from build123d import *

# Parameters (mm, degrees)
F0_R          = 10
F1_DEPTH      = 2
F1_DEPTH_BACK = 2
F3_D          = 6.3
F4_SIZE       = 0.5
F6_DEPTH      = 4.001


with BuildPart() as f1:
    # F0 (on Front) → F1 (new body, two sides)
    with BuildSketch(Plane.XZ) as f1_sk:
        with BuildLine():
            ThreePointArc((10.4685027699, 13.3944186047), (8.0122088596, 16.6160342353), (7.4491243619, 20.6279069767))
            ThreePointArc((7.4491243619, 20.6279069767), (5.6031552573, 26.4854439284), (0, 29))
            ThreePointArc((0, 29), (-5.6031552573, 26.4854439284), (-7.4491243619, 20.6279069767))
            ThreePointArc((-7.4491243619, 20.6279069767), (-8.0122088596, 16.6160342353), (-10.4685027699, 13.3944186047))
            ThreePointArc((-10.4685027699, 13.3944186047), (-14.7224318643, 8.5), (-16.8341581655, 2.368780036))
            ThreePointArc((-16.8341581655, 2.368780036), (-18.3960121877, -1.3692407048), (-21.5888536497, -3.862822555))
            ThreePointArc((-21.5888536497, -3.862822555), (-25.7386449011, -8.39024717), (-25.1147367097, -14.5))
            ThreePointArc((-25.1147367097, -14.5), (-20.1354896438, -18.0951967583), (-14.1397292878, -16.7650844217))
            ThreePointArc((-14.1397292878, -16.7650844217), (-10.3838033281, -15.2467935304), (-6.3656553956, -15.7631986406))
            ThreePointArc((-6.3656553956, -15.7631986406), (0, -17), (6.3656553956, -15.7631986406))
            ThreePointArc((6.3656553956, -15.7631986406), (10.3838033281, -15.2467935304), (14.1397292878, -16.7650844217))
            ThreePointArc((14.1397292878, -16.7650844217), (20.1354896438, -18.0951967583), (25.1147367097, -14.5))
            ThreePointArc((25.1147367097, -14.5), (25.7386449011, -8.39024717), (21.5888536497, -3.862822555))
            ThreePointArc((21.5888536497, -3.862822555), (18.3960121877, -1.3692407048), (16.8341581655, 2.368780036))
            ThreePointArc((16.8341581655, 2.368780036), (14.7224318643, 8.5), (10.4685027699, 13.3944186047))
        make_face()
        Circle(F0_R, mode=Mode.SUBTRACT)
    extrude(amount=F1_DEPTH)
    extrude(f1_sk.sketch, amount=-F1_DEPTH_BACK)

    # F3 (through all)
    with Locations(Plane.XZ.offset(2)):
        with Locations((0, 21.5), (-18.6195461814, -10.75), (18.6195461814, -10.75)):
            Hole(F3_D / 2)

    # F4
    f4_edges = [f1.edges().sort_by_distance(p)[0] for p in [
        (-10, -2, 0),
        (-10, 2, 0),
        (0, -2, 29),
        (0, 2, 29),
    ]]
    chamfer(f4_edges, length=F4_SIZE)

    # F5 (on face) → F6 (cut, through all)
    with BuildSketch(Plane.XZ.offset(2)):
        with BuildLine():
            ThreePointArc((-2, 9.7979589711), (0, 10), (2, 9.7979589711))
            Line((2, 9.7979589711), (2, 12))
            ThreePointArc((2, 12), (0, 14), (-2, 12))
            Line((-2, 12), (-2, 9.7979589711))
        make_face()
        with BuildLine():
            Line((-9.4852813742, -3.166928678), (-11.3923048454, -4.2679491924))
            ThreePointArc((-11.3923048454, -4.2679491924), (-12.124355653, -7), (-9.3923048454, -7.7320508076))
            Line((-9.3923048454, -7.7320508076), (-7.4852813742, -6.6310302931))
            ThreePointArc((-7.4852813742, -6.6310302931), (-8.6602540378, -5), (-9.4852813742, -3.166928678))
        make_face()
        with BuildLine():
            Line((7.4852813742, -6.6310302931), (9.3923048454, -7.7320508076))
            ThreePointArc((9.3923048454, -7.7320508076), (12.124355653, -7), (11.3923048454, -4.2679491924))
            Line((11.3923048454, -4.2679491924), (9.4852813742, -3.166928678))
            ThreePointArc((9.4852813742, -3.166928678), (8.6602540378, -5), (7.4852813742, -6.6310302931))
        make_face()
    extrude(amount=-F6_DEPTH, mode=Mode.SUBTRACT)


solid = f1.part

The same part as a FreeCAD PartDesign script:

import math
import FreeCAD as App
import Part
import Sketcher
from FreeCAD import Vector
Q = App.Units.Quantity


def edges_at(feature, points):
    """Names of the edges that pass closest to the given points."""
    edges = feature.Shape.Edges
    near = lambda p: min(range(len(edges)), key=lambda i: edges[i].distToShape(Part.Vertex(*p))[0])
    return sorted({f"Edge{near(p) + 1}" for p in points})

doc = App.newDocument("Part")
params = doc.addObject("Spreadsheet::Sheet", "Params")
for row, (alias, value) in enumerate([
    ("sketch1_diameter", "20 mm"),
    ("sketch1_radius", "8 mm"),
    ("sketch1_radius2", "17 mm"),
    ("sketch1_radius3", "7.5 mm"),
    ("pad1_length", "2 mm"),
    ("pad1_length2", "2 mm"),
    ("sketch2_diameter", "6.3 mm"),
    ("hole_diameter", "6.3 mm"),
    ("chamfer_size", "0.5 mm"),
    ("sketch3_radius", "10 mm"),
    ("sketch3_radius2", "2 mm"),
], start=1):
    params.set(f"A{row}", alias)
    params.set(f"B{row}", "=" + value)
    params.setAlias(f"B{row}", alias)

body = doc.addObject("PartDesign::Body", "Body")

# Sketch on XZ plane
sketch1 = body.newObject("Sketcher::SketchObject", "Sketch")
sketch1.AttachmentSupport = (doc.getObject("XZ_Plane"), [""])
sketch1.MapMode = "FlatFace"
sketch1.addGeometry(Part.ArcOfCircle(Part.Circle(Vector(15, 20, 0), Vector(0, 0, 1), 8), math.radians(173), math.radians(232)), False)
sketch1.addGeometry(Part.ArcOfCircle(Part.Circle(Vector(0, 22, 0), Vector(0, 0, 1), 8), math.radians(-7), math.radians(90)), False)
sketch1.addGeometry(Part.ArcOfCircle(Part.Circle(Vector(0, 22, 0), Vector(0, 0, 1), 8), math.radians(90), math.radians(187)), False)
sketch1.addGeometry(Part.ArcOfCircle(Part.Circle(Vector(-15, 20, 0), Vector(0, 0, 1), 8), math.radians(-52), math.radians(7)), False)
sketch1.addGeometry(Part.ArcOfCircle(Part.Circle(Vector(0, 0, 0), Vector(0, 0, 1), 17), math.radians(128), math.radians(172)), False)
sketch1.addGeometry(Part.ArcOfCircle(Part.Circle(Vector(-25, 3, 0), Vector(0, 0, 1), 8), math.radians(-67), math.radians(-8)), False)
sketch1.addGeometry(Part.ArcOfCircle(Part.Circle(Vector(-19, -11, 0), Vector(0, 0, 1), 8), math.radians(113), math.radians(210)), False)
sketch1.addGeometry(Part.ArcOfCircle(Part.Circle(Vector(-19, -11, 0), Vector(0, 0, 1), 8), math.radians(-150), math.radians(-53)), False)
sketch1.addGeometry(Part.ArcOfCircle(Part.Circle(Vector(-9, -23, 0), Vector(0, 0, 1), 8), math.radians(68), math.radians(127)), False)
sketch1.addGeometry(Part.ArcOfCircle(Part.Circle(Vector(0, 0, 0), Vector(0, 0, 1), 17), math.radians(-112), math.radians(-68)), False)
sketch1.addGeometry(Part.ArcOfCircle(Part.Circle(Vector(9, -23, 0), Vector(0, 0, 1), 8), math.radians(53), math.radians(112)), False)
sketch1.addGeometry(Part.ArcOfCircle(Part.Circle(Vector(19, -11, 0), Vector(0, 0, 1), 8), math.radians(-127), math.radians(-30)), False)
sketch1.addGeometry(Part.ArcOfCircle(Part.Circle(Vector(19, -11, 0), Vector(0, 0, 1), 8), math.radians(-30), math.radians(67)), False)
sketch1.addGeometry(Part.ArcOfCircle(Part.Circle(Vector(25, 3, 0), Vector(0, 0, 1), 8), math.radians(-172), math.radians(-113)), False)
sketch1.addGeometry(Part.ArcOfCircle(Part.Circle(Vector(0, 0, 0), Vector(0, 0, 1), 17), math.radians(8), math.radians(52)), False)
sketch1.addGeometry(Part.Circle(Vector(0, 0, 0), Vector(0, 0, 1), 10), False)
sketch1.addConstraint(Sketcher.Constraint("Tangent", 0, 1, 1, 1))
sketch1.addConstraint(Sketcher.Constraint("Tangent", 1, 2, 2, 1))
sketch1.addConstraint(Sketcher.Constraint("Tangent", 2, 2, 3, 2))
sketch1.addConstraint(Sketcher.Constraint("Tangent", 3, 1, 4, 1))
sketch1.addConstraint(Sketcher.Constraint("Tangent", 4, 2, 5, 2))
sketch1.addConstraint(Sketcher.Constraint("Tangent", 5, 1, 6, 1))
sketch1.addConstraint(Sketcher.Constraint("Tangent", 6, 2, 7, 1))
sketch1.addConstraint(Sketcher.Constraint("Tangent", 7, 2, 8, 2))
sketch1.addConstraint(Sketcher.Constraint("Tangent", 8, 1, 9, 1))
sketch1.addConstraint(Sketcher.Constraint("Tangent", 9, 2, 10, 2))
sketch1.addConstraint(Sketcher.Constraint("Tangent", 10, 1, 11, 1))
sketch1.addConstraint(Sketcher.Constraint("Tangent", 11, 2, 12, 1))
sketch1.addConstraint(Sketcher.Constraint("Tangent", 12, 2, 13, 2))
sketch1.addConstraint(Sketcher.Constraint("Tangent", 13, 1, 14, 1))
sketch1.addConstraint(Sketcher.Constraint("Tangent", 14, 2, 0, 2))
sketch1.addConstraint(Sketcher.Constraint("Coincident", 4, 3, -1, 1))
sketch1.addConstraint(Sketcher.Constraint("Coincident", 9, 3, -1, 1))
sketch1.addConstraint(Sketcher.Constraint("Coincident", 14, 3, -1, 1))
sketch1.addConstraint(Sketcher.Constraint("Coincident", 15, 3, -1, 1))
sketch1.addConstraint(Sketcher.Constraint("Equal", 1, 2))
sketch1.addConstraint(Sketcher.Constraint("Equal", 0, 3))
sketch1.addConstraint(Sketcher.Constraint("Equal", 3, 5))
sketch1.addConstraint(Sketcher.Constraint("Equal", 2, 6))
sketch1.addConstraint(Sketcher.Constraint("Equal", 6, 7))
sketch1.addConstraint(Sketcher.Constraint("Equal", 5, 8))
sketch1.addConstraint(Sketcher.Constraint("Equal", 4, 9))
sketch1.addConstraint(Sketcher.Constraint("Equal", 8, 10))
sketch1.addConstraint(Sketcher.Constraint("Equal", 7, 11))
sketch1.addConstraint(Sketcher.Constraint("Equal", 11, 12))
sketch1.addConstraint(Sketcher.Constraint("Equal", 10, 13))
sketch1.addConstraint(Sketcher.Constraint("Equal", 9, 14))
sketch1.addConstraint(Sketcher.Constraint("Symmetric", 6, 3, 11, 3, -2))
sketch1.addConstraint(Sketcher.Constraint("PointOnObject", 1, 3, -2))
sketch1.addConstraint(Sketcher.Constraint("PointOnObject", 1, 2, -2))
sketch1.addConstraint(Sketcher.Constraint("Horizontal", 6, 2, 11, 2))
sketch1.addConstraint(Sketcher.Constraint("Diameter", 15, 20.0))
sketch1.addConstraint(Sketcher.Constraint("Radius", 0, 8.0))
sketch1.addConstraint(Sketcher.Constraint("Radius", 4, 17.0))
sketch1.addConstraint(Sketcher.Constraint("Radius", 1, 7.5))
sketch1.addConstraint(Sketcher.Constraint("DistanceY", -1, 1, 1, 2, 29.0))
sketch1.addConstraint(Sketcher.Constraint("DistanceY", 6, 2, -1, 1, 14.5))
sketch1.addConstraint(Sketcher.Constraint("DistanceY", 6, 3, -1, 1, 10.75))
sketch1.addConstraint(Sketcher.Constraint("DistanceY", -1, 1, 5, 3, 3.4835))
sketch1.setExpression("Constraints[35]", "Params.sketch1_diameter")
sketch1.setExpression("Constraints[36]", "Params.sketch1_radius")
sketch1.setExpression("Constraints[37]", "Params.sketch1_radius2")
sketch1.setExpression("Constraints[38]", "Params.sketch1_radius3")
pad1 = body.newObject("PartDesign::Pad", "Pad")
pad1.Profile = sketch1
pad1.Type = "TwoLengths"
pad1.setExpression("Length", "Params.pad1_length")
pad1.setExpression("Length2", "Params.pad1_length2")

# Sketch on XZ plane
sketch2 = body.newObject("Sketcher::SketchObject", "Sketch001")
sketch2.AttachmentSupport = (doc.getObject("XZ_Plane"), [""])
sketch2.MapMode = "FlatFace"
sketch2.AttachmentOffset = App.Placement(Vector(0, 0, 2), App.Rotation())
sketch2.addGeometry(Part.Circle(Vector(0, 21.5, 0), Vector(0, 0, 1), 3.1), False)
sketch2.addGeometry(Part.Circle(Vector(-18.6, -10.8, 0), Vector(0, 0, 1), 3.1), False)
sketch2.addGeometry(Part.Circle(Vector(18.6, -10.8, 0), Vector(0, 0, 1), 3.1), False)
sketch2.addConstraint(Sketcher.Constraint("Equal", 0, 1))
sketch2.addConstraint(Sketcher.Constraint("Equal", 1, 2))
sketch2.addConstraint(Sketcher.Constraint("Symmetric", 1, 3, 2, 3, -2))
sketch2.addConstraint(Sketcher.Constraint("PointOnObject", 0, 3, -2))
sketch2.addConstraint(Sketcher.Constraint("Diameter", 0, 6.3))
sketch2.addConstraint(Sketcher.Constraint("DistanceY", -1, 1, 0, 3, 21.5))
sketch2.addConstraint(Sketcher.Constraint("DistanceY", 1, 3, -1, 1, 10.75))
sketch2.addConstraint(Sketcher.Constraint("DistanceX", 1, 3, -1, 1, 18.619546))
sketch2.setExpression("Constraints[4]", "Params.sketch2_diameter")
doc.recompute()
hole = body.newObject("PartDesign::Hole", "Hole")
hole.Profile = sketch2
hole.ThreadType = "None"
hole.setExpression("Diameter", "Params.hole_diameter")
hole.DepthType = "ThroughAll"
doc.recompute()

chamfer = body.newObject("PartDesign::Chamfer", "Chamfer")
chamfer.Base = (hole, edges_at(hole, [
    (-10, -2, 0),
    (-10, 2, 0),
    (-5.603, -2, 26.485),
    (5.603, 2, 26.485),
]))
chamfer.setExpression("Size", "Params.chamfer_size")

# Sketch on XZ plane
sketch3 = body.newObject("Sketcher::SketchObject", "Sketch002")
sketch3.AttachmentSupport = (doc.getObject("XZ_Plane"), [""])
sketch3.MapMode = "FlatFace"
sketch3.AttachmentOffset = App.Placement(Vector(0, 0, 2), App.Rotation())
sketch3.addGeometry(Part.ArcOfCircle(Part.Circle(Vector(0, 0, 0), Vector(0, 0, 1), 10), math.radians(78), math.radians(102)), False)
sketch3.addGeometry(Part.LineSegment(Vector(2, 9.8, 0), Vector(2, 12, 0)), False)
sketch3.addGeometry(Part.ArcOfCircle(Part.Circle(Vector(0, 12, 0), Vector(0, 0, 1), 2), math.radians(0), math.radians(180)), False)
sketch3.addGeometry(Part.LineSegment(Vector(-2, 12, 0), Vector(-2, 9.8, 0)), False)
sketch3.addGeometry(Part.LineSegment(Vector(-9.5, -3.2, 0), Vector(-11.4, -4.3, 0)), False)
sketch3.addGeometry(Part.ArcOfCircle(Part.Circle(Vector(-10.4, -6, 0), Vector(0, 0, 1), 2), math.radians(120), math.radians(300)), False)
sketch3.addGeometry(Part.LineSegment(Vector(-9.4, -7.7, 0), Vector(-7.5, -6.6, 0)), False)
sketch3.addGeometry(Part.ArcOfCircle(Part.Circle(Vector(0, 0, 0), Vector(0, 0, 1), 10), math.radians(-162), math.radians(-138)), False)
sketch3.addGeometry(Part.LineSegment(Vector(7.5, -6.6, 0), Vector(9.4, -7.7, 0)), False)
sketch3.addGeometry(Part.ArcOfCircle(Part.Circle(Vector(10.4, -6, 0), Vector(0, 0, 1), 2), math.radians(-120), math.radians(60)), False)
sketch3.addGeometry(Part.LineSegment(Vector(11.4, -4.3, 0), Vector(9.5, -3.2, 0)), False)
sketch3.addGeometry(Part.ArcOfCircle(Part.Circle(Vector(0, 0, 0), Vector(0, 0, 1), 10), math.radians(-42), math.radians(-18)), False)
sketch3.addConstraint(Sketcher.Constraint("Coincident", 0, 1, 1, 1))
sketch3.addConstraint(Sketcher.Constraint("Tangent", 1, 2, 2, 1))
sketch3.addConstraint(Sketcher.Constraint("Tangent", 2, 2, 3, 1))
sketch3.addConstraint(Sketcher.Constraint("Coincident", 3, 2, 0, 2))
sketch3.addConstraint(Sketcher.Constraint("Tangent", 4, 2, 5, 1))
sketch3.addConstraint(Sketcher.Constraint("Tangent", 5, 2, 6, 1))
sketch3.addConstraint(Sketcher.Constraint("Coincident", 6, 2, 7, 2))
sketch3.addConstraint(Sketcher.Constraint("Coincident", 7, 1, 4, 1))
sketch3.addConstraint(Sketcher.Constraint("Tangent", 8, 2, 9, 1))
sketch3.addConstraint(Sketcher.Constraint("Tangent", 9, 2, 10, 1))
sketch3.addConstraint(Sketcher.Constraint("Coincident", 10, 2, 11, 2))
sketch3.addConstraint(Sketcher.Constraint("Coincident", 11, 1, 8, 1))
sketch3.addConstraint(Sketcher.Constraint("Vertical", 1))
sketch3.addConstraint(Sketcher.Constraint("Vertical", 3))
sketch3.addConstraint(Sketcher.Constraint("Coincident", 0, 3, -1, 1))
sketch3.addConstraint(Sketcher.Constraint("Coincident", 7, 3, -1, 1))
sketch3.addConstraint(Sketcher.Constraint("Coincident", 11, 3, -1, 1))
sketch3.addConstraint(Sketcher.Constraint("Equal", 2, 5))
sketch3.addConstraint(Sketcher.Constraint("Equal", 0, 7))
sketch3.addConstraint(Sketcher.Constraint("Equal", 5, 9))
sketch3.addConstraint(Sketcher.Constraint("Equal", 7, 11))
sketch3.addConstraint(Sketcher.Constraint("Symmetric", 5, 3, 9, 3, -2))
sketch3.addConstraint(Sketcher.Constraint("PointOnObject", 2, 3, -2))
sketch3.addConstraint(Sketcher.Constraint("Parallel", 4, 6))
sketch3.addConstraint(Sketcher.Constraint("Parallel", 8, 10))
sketch3.addConstraint(Sketcher.Constraint("Horizontal", 5, 2, 8, 2))
sketch3.addConstraint(Sketcher.Constraint("Equal", 4, 6))
sketch3.addConstraint(Sketcher.Constraint("Radius", 0, 10.0))
sketch3.addConstraint(Sketcher.Constraint("Radius", 2, 2.0))
sketch3.addConstraint(Sketcher.Constraint("Angle", 4, Q("-150 deg")))
sketch3.addConstraint(Sketcher.Constraint("DistanceY", -1, 1, 2, 3, 12.0))
sketch3.addConstraint(Sketcher.Constraint("DistanceY", 5, 3, -1, 1, 6.0))
sketch3.setExpression("Constraints[27]", "Params.sketch3_radius")
sketch3.setExpression("Constraints[28]", "Params.sketch3_radius2")
pocket1 = body.newObject("PartDesign::Pocket", "Pocket")
pocket1.Profile = sketch3
pocket1.Type = "ThroughAll"

doc.recompute()
